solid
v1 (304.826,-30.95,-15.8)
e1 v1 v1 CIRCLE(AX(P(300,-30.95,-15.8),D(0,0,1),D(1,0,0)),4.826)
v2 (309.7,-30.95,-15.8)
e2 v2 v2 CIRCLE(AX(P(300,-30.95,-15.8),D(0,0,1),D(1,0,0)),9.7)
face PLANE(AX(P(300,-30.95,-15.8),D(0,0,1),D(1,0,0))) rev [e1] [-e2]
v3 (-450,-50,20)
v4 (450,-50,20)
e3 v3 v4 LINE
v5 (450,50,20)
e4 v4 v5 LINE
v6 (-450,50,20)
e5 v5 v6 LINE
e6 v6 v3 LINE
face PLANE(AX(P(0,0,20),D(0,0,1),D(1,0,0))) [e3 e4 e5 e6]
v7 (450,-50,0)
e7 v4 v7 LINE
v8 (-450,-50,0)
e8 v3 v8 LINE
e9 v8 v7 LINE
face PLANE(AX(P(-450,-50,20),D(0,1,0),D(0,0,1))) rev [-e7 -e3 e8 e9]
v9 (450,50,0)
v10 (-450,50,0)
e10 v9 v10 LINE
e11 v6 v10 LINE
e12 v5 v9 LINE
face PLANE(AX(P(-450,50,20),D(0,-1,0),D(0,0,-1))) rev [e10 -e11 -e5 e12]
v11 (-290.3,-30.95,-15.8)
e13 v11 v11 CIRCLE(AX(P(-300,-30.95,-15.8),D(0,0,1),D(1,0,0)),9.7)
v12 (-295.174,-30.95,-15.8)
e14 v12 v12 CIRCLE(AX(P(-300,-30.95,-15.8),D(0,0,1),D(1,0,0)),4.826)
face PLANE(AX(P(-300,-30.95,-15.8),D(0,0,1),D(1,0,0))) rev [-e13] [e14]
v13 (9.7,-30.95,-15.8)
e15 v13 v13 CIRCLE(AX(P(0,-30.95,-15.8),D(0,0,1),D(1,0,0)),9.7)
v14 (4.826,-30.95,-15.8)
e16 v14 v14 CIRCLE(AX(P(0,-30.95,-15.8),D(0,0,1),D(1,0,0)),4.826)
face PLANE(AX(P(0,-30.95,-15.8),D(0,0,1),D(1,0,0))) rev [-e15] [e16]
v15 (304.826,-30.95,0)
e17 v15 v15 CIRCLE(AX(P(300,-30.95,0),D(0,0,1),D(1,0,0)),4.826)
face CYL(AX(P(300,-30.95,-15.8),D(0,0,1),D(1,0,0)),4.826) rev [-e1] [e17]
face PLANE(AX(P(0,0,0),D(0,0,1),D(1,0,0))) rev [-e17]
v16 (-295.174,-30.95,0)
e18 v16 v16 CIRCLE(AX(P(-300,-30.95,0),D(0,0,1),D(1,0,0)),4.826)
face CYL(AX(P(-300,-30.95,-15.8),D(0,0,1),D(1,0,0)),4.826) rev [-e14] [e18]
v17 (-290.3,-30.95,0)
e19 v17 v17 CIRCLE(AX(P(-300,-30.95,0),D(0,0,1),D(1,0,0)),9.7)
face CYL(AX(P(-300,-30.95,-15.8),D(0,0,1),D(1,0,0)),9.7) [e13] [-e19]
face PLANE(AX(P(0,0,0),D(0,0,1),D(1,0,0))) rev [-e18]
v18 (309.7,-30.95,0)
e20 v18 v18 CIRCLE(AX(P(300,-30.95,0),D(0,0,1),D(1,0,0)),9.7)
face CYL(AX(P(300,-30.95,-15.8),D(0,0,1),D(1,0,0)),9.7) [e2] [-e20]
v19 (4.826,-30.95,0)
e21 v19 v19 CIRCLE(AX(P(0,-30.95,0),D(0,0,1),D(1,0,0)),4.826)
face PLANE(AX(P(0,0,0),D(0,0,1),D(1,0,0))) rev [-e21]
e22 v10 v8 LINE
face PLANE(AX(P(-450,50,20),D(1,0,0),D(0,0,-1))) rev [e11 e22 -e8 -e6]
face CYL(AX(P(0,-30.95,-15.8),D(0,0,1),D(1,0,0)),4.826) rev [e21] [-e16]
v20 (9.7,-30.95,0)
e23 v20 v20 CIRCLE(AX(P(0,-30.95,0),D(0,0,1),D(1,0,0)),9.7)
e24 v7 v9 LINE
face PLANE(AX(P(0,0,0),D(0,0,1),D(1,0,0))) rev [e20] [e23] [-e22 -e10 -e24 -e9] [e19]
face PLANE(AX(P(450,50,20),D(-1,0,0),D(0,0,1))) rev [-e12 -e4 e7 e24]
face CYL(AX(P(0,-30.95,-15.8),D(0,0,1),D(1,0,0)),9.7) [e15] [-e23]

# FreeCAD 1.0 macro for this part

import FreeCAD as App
import Part
import Sketcher


def add_polygon(sketch, points):
    """Adds a closed chain of lines whose ends are joined by coincident constraints."""
    first, n = sketch.GeometryCount, len(points)
    for a, b in zip(points, points[1:] + points[:1]):
        sketch.addGeometry(Part.LineSegment(App.Vector(*a, 0), App.Vector(*b, 0)), False)
    for i in range(n):
        sketch.addConstraint(Sketcher.Constraint("Coincident", first + i, 2, first + (i + 1) % n, 1))

doc = App.newDocument("Part")
body = doc.addObject("PartDesign::Body", "Body")

# Sketch on XY plane
sketch1 = body.newObject("Sketcher::SketchObject", "Sketch")
sketch1.AttachmentSupport = (doc.getObject("XY_Plane"), [""])
sketch1.MapMode = "FlatFace"
add_polygon(sketch1, [(-450, 50), (-450, -50), (450, -50), (450, 50)])  # lines 0-3
sketch1.addConstraint([
    Sketcher.Constraint("Vertical", 0),
    Sketcher.Constraint("Horizontal", 1),
    Sketcher.Constraint("Vertical", 2),
    Sketcher.Constraint("Horizontal", 3),
    Sketcher.Constraint("Symmetric", 0, 2, 2, 2, -1, 1),
    Sketcher.Constraint("DistanceX", 1, 1, 1, 2, 900.0),
    Sketcher.Constraint("DistanceY", 0, 2, 0, 1, 100.0),
])
pad1 = body.newObject("PartDesign::Pad", "Pad")
pad1.Profile = sketch1
pad1.Length = 20

# Sketch on XY plane
sketch2 = body.newObject("Sketcher::SketchObject", "Sketch001")
sketch2.AttachmentSupport = (doc.getObject("XY_Plane"), [""])
sketch2.MapMode = "FlatFace"
sketch2.addGeometry([
    Part.Circle(App.Vector(-300, -30.95, 0), App.Vector(0, 0, 1), 9.7),  # 0
    Part.Circle(App.Vector(-300, -30.95, 0), App.Vector(0, 0, 1), 4.826),  # 1
    Part.Circle(App.Vector(0, -30.95, 0), App.Vector(0, 0, 1), 9.7),  # 2
    Part.Circle(App.Vector(0, -30.95, 0), App.Vector(0, 0, 1), 4.826),  # 3
    Part.Circle(App.Vector(300, -30.95, 0), App.Vector(0, 0, 1), 9.7),  # 4
    Part.Circle(App.Vector(300, -30.95, 0), App.Vector(0, 0, 1), 4.826),  # 5
], False)
sketch2.addConstraint([
    Sketcher.Constraint("Coincident", 1, 3, 0, 3),
    Sketcher.Constraint("Coincident", 3, 3, 2, 3),
    Sketcher.Constraint("Coincident", 5, 3, 4, 3),
    Sketcher.Constraint("Equal", 0, 2),
    Sketcher.Constraint("Equal", 1, 3),
    Sketcher.Constraint("Equal", 2, 4),
    Sketcher.Constraint("Equal", 3, 5),
    Sketcher.Constraint("Symmetric", 0, 3, 4, 3, -2),
    Sketcher.Constraint("PointOnObject", 2, 3, -2),
    Sketcher.Constraint("Horizontal", 1, 3, 2, 3),
    Sketcher.Constraint("Diameter", 0, 19.4),
    Sketcher.Constraint("Diameter", 1, 9.652),
    Sketcher.Constraint("DistanceX", 0, 3, -1, 1, 300.0),
    Sketcher.Constraint("DistanceY", 0, 3, -1, 1, 30.95),
])
pad2 = body.newObject("PartDesign::Pad", "Pad001")
pad2.Profile = sketch2
pad2.Length = 15.8
pad2.Reversed = True

doc.recompute()
